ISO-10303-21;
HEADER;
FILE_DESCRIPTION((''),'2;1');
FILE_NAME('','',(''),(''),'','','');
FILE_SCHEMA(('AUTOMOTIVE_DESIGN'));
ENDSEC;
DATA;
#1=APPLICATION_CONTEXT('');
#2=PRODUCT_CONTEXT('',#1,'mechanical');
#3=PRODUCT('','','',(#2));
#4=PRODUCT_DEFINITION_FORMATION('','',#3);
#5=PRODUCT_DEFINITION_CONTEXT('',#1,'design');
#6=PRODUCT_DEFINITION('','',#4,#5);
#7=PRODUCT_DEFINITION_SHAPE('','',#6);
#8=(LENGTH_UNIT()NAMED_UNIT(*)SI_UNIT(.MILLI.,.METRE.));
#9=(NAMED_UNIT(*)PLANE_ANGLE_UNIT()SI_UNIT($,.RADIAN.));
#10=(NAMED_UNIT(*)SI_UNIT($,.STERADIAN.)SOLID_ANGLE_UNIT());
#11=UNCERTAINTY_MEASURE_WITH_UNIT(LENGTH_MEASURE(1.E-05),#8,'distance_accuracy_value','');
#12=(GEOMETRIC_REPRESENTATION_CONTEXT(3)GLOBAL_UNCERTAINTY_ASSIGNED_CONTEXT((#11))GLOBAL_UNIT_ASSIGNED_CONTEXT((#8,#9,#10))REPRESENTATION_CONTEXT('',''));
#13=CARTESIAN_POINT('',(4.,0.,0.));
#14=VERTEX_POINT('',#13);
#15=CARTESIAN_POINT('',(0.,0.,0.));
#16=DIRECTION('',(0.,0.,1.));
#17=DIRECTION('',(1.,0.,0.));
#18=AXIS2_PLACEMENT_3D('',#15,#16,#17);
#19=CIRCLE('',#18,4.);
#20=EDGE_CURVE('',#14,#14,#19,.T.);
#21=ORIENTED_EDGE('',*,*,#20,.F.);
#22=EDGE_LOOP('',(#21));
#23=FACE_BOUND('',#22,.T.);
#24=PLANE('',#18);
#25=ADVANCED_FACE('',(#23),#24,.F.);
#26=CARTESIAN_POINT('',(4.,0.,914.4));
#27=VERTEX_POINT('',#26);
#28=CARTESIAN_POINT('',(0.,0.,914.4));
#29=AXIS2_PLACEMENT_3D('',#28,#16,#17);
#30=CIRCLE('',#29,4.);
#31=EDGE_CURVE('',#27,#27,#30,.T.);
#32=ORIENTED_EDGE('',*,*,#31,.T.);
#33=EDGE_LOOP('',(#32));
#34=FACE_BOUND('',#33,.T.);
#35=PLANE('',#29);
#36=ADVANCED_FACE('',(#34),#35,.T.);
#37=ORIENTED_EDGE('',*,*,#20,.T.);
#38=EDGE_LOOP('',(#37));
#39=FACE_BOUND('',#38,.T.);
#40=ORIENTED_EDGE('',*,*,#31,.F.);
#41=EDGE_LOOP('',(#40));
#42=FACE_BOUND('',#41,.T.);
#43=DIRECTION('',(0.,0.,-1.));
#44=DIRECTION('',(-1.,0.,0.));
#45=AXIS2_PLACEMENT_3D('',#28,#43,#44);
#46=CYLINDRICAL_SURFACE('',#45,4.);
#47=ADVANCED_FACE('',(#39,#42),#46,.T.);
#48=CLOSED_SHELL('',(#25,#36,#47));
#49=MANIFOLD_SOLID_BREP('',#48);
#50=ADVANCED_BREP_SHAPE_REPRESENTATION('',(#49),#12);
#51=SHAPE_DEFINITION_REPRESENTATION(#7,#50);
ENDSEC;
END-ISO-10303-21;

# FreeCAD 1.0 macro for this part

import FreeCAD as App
import Part
import Sketcher

doc = App.newDocument("Part")
body = doc.addObject("PartDesign::Body", "Body")

sketch1 = body.newObject("Sketcher::SketchObject", "Sketch")
sketch1.AttachmentSupport = (doc.getObject("XY_Plane"), [""])
sketch1.MapMode = "FlatFace"
sketch1.addGeometry(Part.Circle(App.Vector(0, 0, 0), App.Vector(0, 0, 1), 4), False)
sketch1.addConstraint([
    Sketcher.Constraint("Coincident", 0, 3, -1, 1),
    Sketcher.Constraint("Diameter", 0, 8.0),
])
pad1 = body.newObject("PartDesign::Pad", "Pad")
pad1.Profile = sketch1
pad1.Length = 914.4

doc.recompute()
